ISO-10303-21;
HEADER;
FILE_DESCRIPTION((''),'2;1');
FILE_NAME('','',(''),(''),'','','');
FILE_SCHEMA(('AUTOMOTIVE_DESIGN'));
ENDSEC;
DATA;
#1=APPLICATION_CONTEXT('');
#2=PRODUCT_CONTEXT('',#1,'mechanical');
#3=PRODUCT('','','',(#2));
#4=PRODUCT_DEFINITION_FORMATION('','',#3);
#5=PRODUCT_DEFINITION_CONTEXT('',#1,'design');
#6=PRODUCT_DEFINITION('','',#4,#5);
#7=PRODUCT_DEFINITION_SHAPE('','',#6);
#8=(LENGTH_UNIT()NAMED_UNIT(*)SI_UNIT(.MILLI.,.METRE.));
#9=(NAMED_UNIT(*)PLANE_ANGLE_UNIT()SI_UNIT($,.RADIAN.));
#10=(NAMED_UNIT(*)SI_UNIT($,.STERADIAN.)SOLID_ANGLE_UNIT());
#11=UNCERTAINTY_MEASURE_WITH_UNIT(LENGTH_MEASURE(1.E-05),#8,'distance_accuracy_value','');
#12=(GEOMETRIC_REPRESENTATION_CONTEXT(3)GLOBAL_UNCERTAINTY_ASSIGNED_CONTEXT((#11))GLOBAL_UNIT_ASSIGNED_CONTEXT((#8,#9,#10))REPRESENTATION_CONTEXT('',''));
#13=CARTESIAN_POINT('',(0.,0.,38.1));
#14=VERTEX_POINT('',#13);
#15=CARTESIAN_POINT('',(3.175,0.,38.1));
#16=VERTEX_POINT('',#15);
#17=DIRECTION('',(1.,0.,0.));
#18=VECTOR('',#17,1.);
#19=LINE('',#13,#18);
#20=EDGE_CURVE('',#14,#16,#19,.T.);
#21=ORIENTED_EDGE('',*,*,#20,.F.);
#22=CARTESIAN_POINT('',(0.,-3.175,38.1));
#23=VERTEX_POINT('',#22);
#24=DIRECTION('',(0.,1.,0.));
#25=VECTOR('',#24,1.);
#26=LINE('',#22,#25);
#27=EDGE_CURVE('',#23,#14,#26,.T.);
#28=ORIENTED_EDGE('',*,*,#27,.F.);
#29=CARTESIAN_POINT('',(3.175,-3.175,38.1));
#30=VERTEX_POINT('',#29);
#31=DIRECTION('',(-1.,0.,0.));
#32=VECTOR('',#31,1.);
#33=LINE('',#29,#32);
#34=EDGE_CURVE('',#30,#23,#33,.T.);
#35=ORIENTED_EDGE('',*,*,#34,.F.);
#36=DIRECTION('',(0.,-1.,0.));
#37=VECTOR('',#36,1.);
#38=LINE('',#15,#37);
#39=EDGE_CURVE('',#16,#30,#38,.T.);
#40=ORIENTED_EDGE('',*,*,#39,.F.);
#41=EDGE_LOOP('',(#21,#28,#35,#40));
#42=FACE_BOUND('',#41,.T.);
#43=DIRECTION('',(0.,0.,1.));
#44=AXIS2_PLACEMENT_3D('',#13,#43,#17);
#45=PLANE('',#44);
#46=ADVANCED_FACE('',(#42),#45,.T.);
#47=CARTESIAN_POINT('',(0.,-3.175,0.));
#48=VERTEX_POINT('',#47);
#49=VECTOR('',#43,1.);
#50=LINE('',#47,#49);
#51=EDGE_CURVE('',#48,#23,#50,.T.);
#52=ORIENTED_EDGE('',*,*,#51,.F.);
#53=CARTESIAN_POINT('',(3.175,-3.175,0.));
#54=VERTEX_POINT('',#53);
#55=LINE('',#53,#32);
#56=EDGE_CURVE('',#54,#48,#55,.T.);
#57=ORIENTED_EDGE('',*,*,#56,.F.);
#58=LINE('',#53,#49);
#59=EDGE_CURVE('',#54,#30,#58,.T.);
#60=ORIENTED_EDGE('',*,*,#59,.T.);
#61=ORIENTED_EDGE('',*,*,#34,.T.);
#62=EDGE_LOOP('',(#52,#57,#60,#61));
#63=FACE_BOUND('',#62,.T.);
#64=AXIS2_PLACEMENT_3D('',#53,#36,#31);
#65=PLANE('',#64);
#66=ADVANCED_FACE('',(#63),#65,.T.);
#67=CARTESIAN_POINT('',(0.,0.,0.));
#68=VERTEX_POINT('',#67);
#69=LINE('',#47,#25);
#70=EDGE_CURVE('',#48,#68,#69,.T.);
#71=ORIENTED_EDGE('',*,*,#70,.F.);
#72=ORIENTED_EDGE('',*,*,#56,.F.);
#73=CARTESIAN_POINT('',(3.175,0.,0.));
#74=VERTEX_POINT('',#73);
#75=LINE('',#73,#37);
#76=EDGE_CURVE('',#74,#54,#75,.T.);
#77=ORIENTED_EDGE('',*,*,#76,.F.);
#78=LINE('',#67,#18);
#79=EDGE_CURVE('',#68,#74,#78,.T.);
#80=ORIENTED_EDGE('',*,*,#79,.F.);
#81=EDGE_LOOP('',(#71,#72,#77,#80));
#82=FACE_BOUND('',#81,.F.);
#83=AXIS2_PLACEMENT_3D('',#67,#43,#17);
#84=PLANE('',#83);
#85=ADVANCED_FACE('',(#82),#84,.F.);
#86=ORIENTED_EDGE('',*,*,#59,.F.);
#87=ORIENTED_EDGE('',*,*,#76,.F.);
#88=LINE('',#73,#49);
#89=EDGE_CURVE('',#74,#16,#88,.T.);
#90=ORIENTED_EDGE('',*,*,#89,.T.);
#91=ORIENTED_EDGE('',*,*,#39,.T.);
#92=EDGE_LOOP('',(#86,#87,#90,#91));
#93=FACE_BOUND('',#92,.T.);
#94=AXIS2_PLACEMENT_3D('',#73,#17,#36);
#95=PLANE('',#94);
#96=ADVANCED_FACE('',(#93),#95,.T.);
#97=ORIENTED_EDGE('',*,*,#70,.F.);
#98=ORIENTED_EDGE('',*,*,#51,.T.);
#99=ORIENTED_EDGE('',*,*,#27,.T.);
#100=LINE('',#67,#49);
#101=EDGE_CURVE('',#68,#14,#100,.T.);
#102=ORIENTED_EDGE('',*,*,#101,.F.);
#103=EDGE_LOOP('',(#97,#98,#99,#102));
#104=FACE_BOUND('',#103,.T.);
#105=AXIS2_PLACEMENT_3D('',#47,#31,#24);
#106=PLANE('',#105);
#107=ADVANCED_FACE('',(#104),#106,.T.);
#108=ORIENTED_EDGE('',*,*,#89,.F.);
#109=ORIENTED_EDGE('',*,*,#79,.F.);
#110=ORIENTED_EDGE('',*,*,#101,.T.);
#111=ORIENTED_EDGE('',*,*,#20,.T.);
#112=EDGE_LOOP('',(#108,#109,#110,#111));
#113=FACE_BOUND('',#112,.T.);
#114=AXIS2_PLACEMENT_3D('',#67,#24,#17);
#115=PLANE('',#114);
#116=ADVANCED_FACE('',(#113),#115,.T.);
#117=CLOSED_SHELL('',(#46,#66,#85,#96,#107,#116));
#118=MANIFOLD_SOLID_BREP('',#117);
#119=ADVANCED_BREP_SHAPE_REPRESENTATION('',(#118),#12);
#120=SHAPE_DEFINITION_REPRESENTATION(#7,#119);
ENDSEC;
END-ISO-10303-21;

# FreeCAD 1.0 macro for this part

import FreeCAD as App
import Part
import Sketcher
Q = App.Units.Quantity

doc = App.newDocument("Part")
body = doc.addObject("PartDesign::Body", "Body")

# Sketch on XY plane
sketch1 = body.newObject("Sketcher::SketchObject", "Sketch")
sketch1.AttachmentSupport = (doc.getObject("XY_Plane"), [""])
sketch1.MapMode = "FlatFace"
sketch1.addGeometry(Part.LineSegment(App.Vector(3.2, 0, 0), App.Vector(0, 0, 0)), False)
sketch1.addGeometry(Part.LineSegment(App.Vector(0, 0, 0), App.Vector(0, -3.2, 0)), False)
sketch1.addGeometry(Part.LineSegment(App.Vector(0, -3.2, 0), App.Vector(3.2, -3.2, 0)), False)
sketch1.addGeometry(Part.LineSegment(App.Vector(3.2, -3.2, 0), App.Vector(3.2, 0, 0)), False)
sketch1.addConstraint(Sketcher.Constraint("Coincident", 0, 2, 1, 1))
sketch1.addConstraint(Sketcher.Constraint("Coincident", 1, 2, 2, 1))
sketch1.addConstraint(Sketcher.Constraint("Coincident", 2, 2, 3, 1))
sketch1.addConstraint(Sketcher.Constraint("Coincident", 3, 2, 0, 1))
sketch1.addConstraint(Sketcher.Constraint("Horizontal", 0))
sketch1.addConstraint(Sketcher.Constraint("Vertical", 1))
sketch1.addConstraint(Sketcher.Constraint("Horizontal", 2))
sketch1.addConstraint(Sketcher.Constraint("Vertical", 3))
sketch1.addConstraint(Sketcher.Constraint("Coincident", 0, 2, -1, 1))
sketch1.addConstraint(Sketcher.Constraint("Equal", 2, 1))
sketch1.addConstraint(Sketcher.Constraint("DistanceX", 0, 2, 0, 1, Q("0.125 in")))
pad1 = body.newObject("PartDesign::Pad", "Pad")
pad1.Profile = sketch1
pad1.Length = Q("1.5 in")

doc.recompute()
